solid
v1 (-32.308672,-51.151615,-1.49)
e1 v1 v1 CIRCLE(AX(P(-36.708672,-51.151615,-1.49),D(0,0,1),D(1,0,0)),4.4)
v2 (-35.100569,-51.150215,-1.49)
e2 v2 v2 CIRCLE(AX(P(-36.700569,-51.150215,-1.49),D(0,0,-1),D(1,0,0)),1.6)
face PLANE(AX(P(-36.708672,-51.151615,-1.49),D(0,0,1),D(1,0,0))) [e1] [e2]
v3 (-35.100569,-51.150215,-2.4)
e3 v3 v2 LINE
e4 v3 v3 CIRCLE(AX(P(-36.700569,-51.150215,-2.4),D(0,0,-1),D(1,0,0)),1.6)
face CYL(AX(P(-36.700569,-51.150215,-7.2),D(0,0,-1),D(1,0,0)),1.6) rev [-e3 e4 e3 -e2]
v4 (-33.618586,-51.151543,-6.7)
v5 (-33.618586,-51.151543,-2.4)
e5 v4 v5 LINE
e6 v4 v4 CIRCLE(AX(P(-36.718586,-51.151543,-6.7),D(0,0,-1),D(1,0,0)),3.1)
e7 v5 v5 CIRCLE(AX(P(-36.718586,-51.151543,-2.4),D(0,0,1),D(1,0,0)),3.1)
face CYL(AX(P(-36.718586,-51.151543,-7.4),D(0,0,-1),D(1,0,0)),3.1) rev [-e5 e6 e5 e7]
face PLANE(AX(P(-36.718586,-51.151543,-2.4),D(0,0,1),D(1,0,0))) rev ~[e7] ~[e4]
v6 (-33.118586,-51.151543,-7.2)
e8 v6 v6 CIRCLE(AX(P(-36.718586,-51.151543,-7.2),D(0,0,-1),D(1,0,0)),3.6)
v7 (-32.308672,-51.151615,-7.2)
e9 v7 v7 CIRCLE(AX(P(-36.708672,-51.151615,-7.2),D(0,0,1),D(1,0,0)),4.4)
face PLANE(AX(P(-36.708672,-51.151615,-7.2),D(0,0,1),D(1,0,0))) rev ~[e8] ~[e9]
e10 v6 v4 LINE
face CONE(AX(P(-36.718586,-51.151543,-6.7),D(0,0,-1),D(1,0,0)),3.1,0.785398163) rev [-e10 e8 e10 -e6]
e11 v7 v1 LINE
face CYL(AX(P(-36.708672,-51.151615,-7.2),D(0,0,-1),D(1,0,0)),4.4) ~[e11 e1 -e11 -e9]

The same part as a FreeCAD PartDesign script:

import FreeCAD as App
import Part
import Sketcher
Q = App.Units.Quantity


def edges_at(feature, points):
    """Names of the edges that pass closest to the given points."""
    edges = feature.Shape.Edges
    near = lambda p: min(range(len(edges)), key=lambda i: edges[i].distToShape(Part.Vertex(*p))[0])
    return sorted({f"Edge{near(p) + 1}" for p in points})

doc = App.newDocument("Part")
body = doc.addObject("PartDesign::Body", "Body")

# Sketch on XY plane
sketch1 = body.newObject("Sketcher::SketchObject", "Sketch")
sketch1.AttachmentSupport = (doc.getObject("XY_Plane"), [""])
sketch1.MapMode = "FlatFace"
sketch1.AttachmentOffset = App.Placement(App.Vector(0, 0, -7.2), App.Rotation())
sketch1.addGeometry(Part.Circle(App.Vector(-36.7, -51.2, 0), App.Vector(0, 0, 1), 4.4), False)
sketch1.addConstraint([
    Sketcher.Constraint("Diameter", 0, Q("8.8 mm")),
    Sketcher.Constraint("DistanceX", 0, 3, -1, 1, Q("36.708672 mm")),
    Sketcher.Constraint("DistanceY", 0, 3, -1, 1, Q("51.151615 mm")),
])
pad1 = body.newObject("PartDesign::Pad", "Pad")
pad1.Profile = sketch1
pad1.Length = 5.71

# Sketch on XY plane
sketch2 = body.newObject("Sketcher::SketchObject", "Sketch001")
sketch2.AttachmentSupport = (doc.getObject("XY_Plane"), [""])
sketch2.MapMode = "FlatFace"
sketch2.AttachmentOffset = App.Placement(App.Vector(0, 0, -7.4), App.Rotation())
sketch2.addGeometry(Part.Circle(App.Vector(-36.7, -51.2, 0), App.Vector(0, 0, 1), 3.1), False)
sketch2.addConstraint([
    Sketcher.Constraint("Diameter", 0, Q("6.2 mm")),
    Sketcher.Constraint("DistanceX", 0, 3, -1, 1, Q("36.718586 mm")),
    Sketcher.Constraint("DistanceY", 0, 3, -1, 1, Q("51.151543 mm")),
])
pocket1 = body.newObject("PartDesign::Pocket", "Pocket")
pocket1.Profile = sketch2
pocket1.Length = 5
pocket1.Reversed = True

# Sketch on XY plane
sketch3 = body.newObject("Sketcher::SketchObject", "Sketch002")
sketch3.AttachmentSupport = (doc.getObject("XY_Plane"), [""])
sketch3.MapMode = "FlatFace"
sketch3.AttachmentOffset = App.Placement(App.Vector(0, 0, -7.2), App.Rotation())
sketch3.addGeometry(Part.Circle(App.Vector(-36.7, -51.2, 0), App.Vector(0, 0, 1), 1.6), False)
sketch3.addConstraint([
    Sketcher.Constraint("Diameter", 0, Q("3.2 mm")),
    Sketcher.Constraint("DistanceX", 0, 3, -1, 1, Q("36.700569 mm")),
    Sketcher.Constraint("DistanceY", 0, 3, -1, 1, Q("51.150215 mm")),
])
pocket2 = body.newObject("PartDesign::Pocket", "Pocket001")
pocket2.Profile = sketch3
pocket2.Length = 7.2
pocket2.Reversed = True
doc.recompute()

chamfer = body.newObject("PartDesign::Chamfer", "Chamfer")
chamfer.Base = (pocket2, edges_at(pocket2, [(-39.819, -51.152, -7.2)]))
chamfer.Size = 0.5

doc.recompute()
